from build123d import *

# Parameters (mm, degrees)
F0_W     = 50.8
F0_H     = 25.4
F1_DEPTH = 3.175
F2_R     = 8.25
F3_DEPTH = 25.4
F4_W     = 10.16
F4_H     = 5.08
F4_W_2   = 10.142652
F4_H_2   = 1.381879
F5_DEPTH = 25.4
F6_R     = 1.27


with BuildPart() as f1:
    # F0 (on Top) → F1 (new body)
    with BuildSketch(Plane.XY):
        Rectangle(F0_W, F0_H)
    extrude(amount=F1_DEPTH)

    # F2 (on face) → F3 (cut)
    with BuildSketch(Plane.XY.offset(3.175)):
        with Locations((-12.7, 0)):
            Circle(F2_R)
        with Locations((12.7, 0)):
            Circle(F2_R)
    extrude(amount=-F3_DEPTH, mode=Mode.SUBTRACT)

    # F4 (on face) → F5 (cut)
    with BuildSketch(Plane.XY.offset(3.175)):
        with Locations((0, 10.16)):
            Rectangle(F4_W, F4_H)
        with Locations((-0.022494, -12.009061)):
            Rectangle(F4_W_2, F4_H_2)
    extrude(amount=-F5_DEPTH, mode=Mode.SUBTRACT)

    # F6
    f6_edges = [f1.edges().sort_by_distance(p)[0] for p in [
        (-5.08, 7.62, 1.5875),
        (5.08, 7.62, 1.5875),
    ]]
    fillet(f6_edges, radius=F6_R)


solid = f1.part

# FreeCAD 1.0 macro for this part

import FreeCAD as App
import Part
import Sketcher
from FreeCAD import Vector
Q = App.Units.Quantity


def edges_at(feature, points):
    """Names of the edges that pass closest to the given points."""
    edges = feature.Shape.Edges
    near = lambda p: min(range(len(edges)), key=lambda i: edges[i].distToShape(Part.Vertex(*p))[0])
    return sorted({f"Edge{near(p) + 1}" for p in points})

doc = App.newDocument("Part")
body = doc.addObject("PartDesign::Body", "Body")

sketch1 = body.newObject("Sketcher::SketchObject", "Sketch")
sketch1.AttachmentSupport = (doc.getObject("XY_Plane"), [""])
sketch1.MapMode = "FlatFace"
sketch1.addGeometry(Part.LineSegment(Vector(-25.4, 12.7, 0), Vector(-25.4, -12.7, 0)), False)
sketch1.addGeometry(Part.LineSegment(Vector(-25.4, -12.7, 0), Vector(25.4, -12.7, 0)), False)
sketch1.addGeometry(Part.LineSegment(Vector(25.4, -12.7, 0), Vector(25.4, 12.7, 0)), False)
sketch1.addGeometry(Part.LineSegment(Vector(25.4, 12.7, 0), Vector(-25.4, 12.7, 0)), False)
sketch1.addConstraint(Sketcher.Constraint("Coincident", 0, 2, 1, 1))
sketch1.addConstraint(Sketcher.Constraint("Coincident", 1, 2, 2, 1))
sketch1.addConstraint(Sketcher.Constraint("Coincident", 2, 2, 3, 1))
sketch1.addConstraint(Sketcher.Constraint("Coincident", 3, 2, 0, 1))
sketch1.addConstraint(Sketcher.Constraint("Vertical", 0))
sketch1.addConstraint(Sketcher.Constraint("Horizontal", 1))
sketch1.addConstraint(Sketcher.Constraint("Vertical", 2))
sketch1.addConstraint(Sketcher.Constraint("Horizontal", 3))
sketch1.addConstraint(Sketcher.Constraint("Symmetric", 0, 2, 2, 2, -1, 1))
sketch1.addConstraint(Sketcher.Constraint("DistanceX", 1, 1, 1, 2, Q("2 in")))
sketch1.addConstraint(Sketcher.Constraint("DistanceY", 0, 2, 0, 1, Q("1 in")))
pad1 = body.newObject("PartDesign::Pad", "Pad")
pad1.Profile = sketch1
pad1.Length = Q("0.125 in")

sketch2 = body.newObject("Sketcher::SketchObject", "Sketch001")
sketch2.AttachmentSupport = (doc.getObject("XY_Plane"), [""])
sketch2.MapMode = "FlatFace"
sketch2.AttachmentOffset = App.Placement(Vector(0, 0, 0.125 * 25.4), App.Rotation())
sketch2.addGeometry(Part.Circle(Vector(-12.7, 0, 0), Vector(0, 0, 1), 8.25), False)
sketch2.addGeometry(Part.Circle(Vector(12.7, 0, 0), Vector(0, 0, 1), 8.25), False)
sketch2.addConstraint(Sketcher.Constraint("Equal", 0, 1))
sketch2.addConstraint(Sketcher.Constraint("Symmetric", 0, 3, 1, 3, -1, 1))
sketch2.addConstraint(Sketcher.Constraint("PointOnObject", 0, 3, -1))
sketch2.addConstraint(Sketcher.Constraint("DistanceX", 0, 3, 1, 3, Q("1 in")))
sketch2.addConstraint(Sketcher.Constraint("Diameter", 0, Q("16.5 mm")))
pocket1 = body.newObject("PartDesign::Pocket", "Pocket")
pocket1.Profile = sketch2
pocket1.Length = Q("1 in")

sketch3 = body.newObject("Sketcher::SketchObject", "Sketch002")
sketch3.AttachmentSupport = (doc.getObject("XY_Plane"), [""])
sketch3.MapMode = "FlatFace"
sketch3.AttachmentOffset = App.Placement(Vector(0, 0, 0.125 * 25.4), App.Rotation())
sketch3.addGeometry(Part.LineSegment(Vector(-5.08, 12.7, 0), Vector(-5.08, 7.62, 0)), False)
sketch3.addGeometry(Part.LineSegment(Vector(-5.08, 7.62, 0), Vector(5.08, 7.62, 0)), False)
sketch3.addGeometry(Part.LineSegment(Vector(5.08, 7.62, 0), Vector(5.08, 12.7, 0)), False)
sketch3.addGeometry(Part.LineSegment(Vector(5.08, 12.7, 0), Vector(-5.08, 12.7, 0)), False)
sketch3.addGeometry(Part.LineSegment(Vector(-5.09382, -11.318122, 0), Vector(-5.09382, -12.7, 0)), False)
sketch3.addGeometry(Part.LineSegment(Vector(-5.09382, -12.7, 0), Vector(5.048832, -12.7, 0)), False)
sketch3.addGeometry(Part.LineSegment(Vector(5.048832, -12.7, 0), Vector(5.048832, -11.318122, 0)), False)
sketch3.addGeometry(Part.LineSegment(Vector(5.048832, -11.318122, 0), Vector(-5.09382, -11.318122, 0)), False)
sketch3.addConstraint(Sketcher.Constraint("Coincident", 0, 2, 1, 1))
sketch3.addConstraint(Sketcher.Constraint("Coincident", 1, 2, 2, 1))
sketch3.addConstraint(Sketcher.Constraint("Coincident", 2, 2, 3, 1))
sketch3.addConstraint(Sketcher.Constraint("Coincident", 3, 2, 0, 1))
sketch3.addConstraint(Sketcher.Constraint("Coincident", 4, 2, 5, 1))
sketch3.addConstraint(Sketcher.Constraint("Coincident", 5, 2, 6, 1))
sketch3.addConstraint(Sketcher.Constraint("Coincident", 6, 2, 7, 1))
sketch3.addConstraint(Sketcher.Constraint("Coincident", 7, 2, 4, 1))
sketch3.addConstraint(Sketcher.Constraint("Vertical", 0))
sketch3.addConstraint(Sketcher.Constraint("Horizontal", 1))
sketch3.addConstraint(Sketcher.Constraint("Vertical", 2))
sketch3.addConstraint(Sketcher.Constraint("Horizontal", 3))
sketch3.addConstraint(Sketcher.Constraint("Vertical", 4))
sketch3.addConstraint(Sketcher.Constraint("Horizontal", 5))
sketch3.addConstraint(Sketcher.Constraint("Vertical", 6))
sketch3.addConstraint(Sketcher.Constraint("Horizontal", 7))
sketch3.addConstraint(Sketcher.Constraint("DistanceX", 1, 1, 1, 2, Q("0.4 in")))
sketch3.addConstraint(Sketcher.Constraint("DistanceY", 0, 2, 0, 1, Q("0.2 in")))
sketch3.addConstraint(Sketcher.Constraint("DistanceY", 4, 2, 3, 2, Q("1 in")))
sketch3.addConstraint(Sketcher.Constraint("DistanceX", 0, 2, -1, 1, Q("0.2 in")))
sketch3.addConstraint(Sketcher.Constraint("DistanceY", -1, 1, 0, 2, Q("0.3 in")))
sketch3.addConstraint(Sketcher.Constraint("DistanceY", 4, 2, 4, 1, Q("1.381879 mm")))
sketch3.addConstraint(Sketcher.Constraint("DistanceX", 5, 1, 5, 2, Q("10.142652 mm")))
sketch3.addConstraint(Sketcher.Constraint("DistanceX", 4, 2, -1, 1, Q("5.09382 mm")))
pocket2 = body.newObject("PartDesign::Pocket", "Pocket001")
pocket2.Profile = sketch3
pocket2.Length = Q("1 in")
doc.recompute()

fillet = body.newObject("PartDesign::Fillet", "Fillet")
fillet.Base = (pocket2, edges_at(pocket2, [(-5.08, 7.62, 1.587), (5.08, 7.62, 1.587)]))
fillet.Radius = Q("0.05 in")

doc.recompute()
